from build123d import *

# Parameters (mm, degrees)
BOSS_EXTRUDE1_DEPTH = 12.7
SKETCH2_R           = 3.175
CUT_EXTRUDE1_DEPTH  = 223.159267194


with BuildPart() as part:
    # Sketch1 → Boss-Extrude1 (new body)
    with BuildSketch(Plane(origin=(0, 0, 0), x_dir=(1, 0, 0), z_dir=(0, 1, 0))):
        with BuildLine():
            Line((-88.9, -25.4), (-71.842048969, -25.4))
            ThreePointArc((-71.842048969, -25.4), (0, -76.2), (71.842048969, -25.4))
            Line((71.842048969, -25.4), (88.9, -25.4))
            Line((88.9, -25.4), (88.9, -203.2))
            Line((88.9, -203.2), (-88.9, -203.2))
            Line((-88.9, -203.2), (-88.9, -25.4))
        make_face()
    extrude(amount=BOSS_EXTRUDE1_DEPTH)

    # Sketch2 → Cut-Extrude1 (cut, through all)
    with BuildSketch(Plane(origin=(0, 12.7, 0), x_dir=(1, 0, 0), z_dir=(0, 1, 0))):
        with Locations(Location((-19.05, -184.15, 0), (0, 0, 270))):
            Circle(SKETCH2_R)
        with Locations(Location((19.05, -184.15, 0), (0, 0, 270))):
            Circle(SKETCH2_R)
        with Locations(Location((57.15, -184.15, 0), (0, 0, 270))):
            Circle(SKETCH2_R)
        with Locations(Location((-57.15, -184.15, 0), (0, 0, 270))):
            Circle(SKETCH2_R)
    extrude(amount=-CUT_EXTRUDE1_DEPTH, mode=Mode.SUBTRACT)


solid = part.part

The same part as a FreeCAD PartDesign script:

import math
import FreeCAD as App
import Part
import Sketcher

V = App.Vector
Q = App.Units.Quantity

doc = App.newDocument("Part")
body = doc.addObject("PartDesign::Body", "Body")

# Sketch on XZ plane
sketch1 = body.newObject("Sketcher::SketchObject", "Sketch")
sketch1.AttachmentSupport = (doc.getObject("XZ_Plane"), [""])
sketch1.MapMode = "FlatFace"
sketch1.addGeometry(Part.LineSegment(V(-72, 25, 0), V(-89, 25, 0)), False)
sketch1.addGeometry(Part.LineSegment(V(-89, 25, 0), V(-89, 203, 0)), False)
sketch1.addGeometry(Part.LineSegment(V(-89, 203, 0), V(89, 203, 0)), False)
sketch1.addGeometry(Part.LineSegment(V(89, 203, 0), V(89, 25, 0)), False)
sketch1.addGeometry(Part.LineSegment(V(89, 25, 0), V(72, 25, 0)), False)
sketch1.addGeometry(Part.ArcOfCircle(Part.Circle(V(0, 0, 0), V(0, 0, 1), 76), math.radians(19), math.radians(161)), False)
sketch1.addConstraint(Sketcher.Constraint("Coincident", 0, 2, 1, 1))
sketch1.addConstraint(Sketcher.Constraint("Coincident", 1, 2, 2, 1))
sketch1.addConstraint(Sketcher.Constraint("Coincident", 2, 2, 3, 1))
sketch1.addConstraint(Sketcher.Constraint("Coincident", 3, 2, 4, 1))
sketch1.addConstraint(Sketcher.Constraint("Coincident", 4, 2, 5, 1))
sketch1.addConstraint(Sketcher.Constraint("Coincident", 5, 2, 0, 1))
sketch1.addConstraint(Sketcher.Constraint("Horizontal", 0))
sketch1.addConstraint(Sketcher.Constraint("Vertical", 1))
sketch1.addConstraint(Sketcher.Constraint("Horizontal", 2))
sketch1.addConstraint(Sketcher.Constraint("Vertical", 3))
sketch1.addConstraint(Sketcher.Constraint("Horizontal", 4))
sketch1.addConstraint(Sketcher.Constraint("Coincident", 5, 3, -1, 1))
sketch1.addConstraint(Sketcher.Constraint("Symmetric", 0, 2, 3, 2, -2))
sketch1.addConstraint(Sketcher.Constraint("Equal", 2, 1))
sketch1.addConstraint(Sketcher.Constraint("Radius", 5, Q("3 in")))
sketch1.addConstraint(Sketcher.Constraint("DistanceX", 2, 1, 2, 2, Q("7 in")))
sketch1.addConstraint(Sketcher.Constraint("DistanceY", -1, 1, 0, 2, Q("1 in")))
pad1 = body.newObject("PartDesign::Pad", "Pad")
pad1.Profile = sketch1
pad1.Length = Q("0.5 in")
pad1.Reversed = True

# Sketch on XZ plane
sketch2 = body.newObject("Sketcher::SketchObject", "Sketch001")
sketch2.AttachmentSupport = (doc.getObject("XZ_Plane"), [""])
sketch2.MapMode = "FlatFace"
sketch2.AttachmentOffset = App.Placement(V(0, 0, -0.5 * 25.4), App.Rotation())
sketch2.addGeometry(Part.Circle(V(-19.1, 184.2, 0), V(0, 0, 1), 3.2), False)
sketch2.addGeometry(Part.Circle(V(19.1, 184.2, 0), V(0, 0, 1), 3.2), False)
sketch2.addGeometry(Part.Circle(V(57.1, 184.2, 0), V(0, 0, 1), 3.2), False)
sketch2.addGeometry(Part.Circle(V(-57.1, 184.2, 0), V(0, 0, 1), 3.2), False)
sketch2.addConstraint(Sketcher.Constraint("Equal", 0, 1))
sketch2.addConstraint(Sketcher.Constraint("Equal", 1, 2))
sketch2.addConstraint(Sketcher.Constraint("Equal", 2, 3))
sketch2.addConstraint(Sketcher.Constraint("Symmetric", 0, 3, 1, 3, -2))
sketch2.addConstraint(Sketcher.Constraint("Symmetric", 2, 3, 3, 3, -2))
sketch2.addConstraint(Sketcher.Constraint("Horizontal", 1, 3, 2, 3))
sketch2.addConstraint(Sketcher.Constraint("Diameter", 0, Q("0.25 in")))
sketch2.addConstraint(Sketcher.Constraint("DistanceX", 0, 3, 2, 3, Q("3 in")))
sketch2.addConstraint(Sketcher.Constraint("DistanceX", 0, 3, 1, 3, Q("1.5 in")))
sketch2.addConstraint(Sketcher.Constraint("DistanceY", -1, 1, 0, 3, Q("7.25 in")))
pocket1 = body.newObject("PartDesign::Pocket", "Pocket")
pocket1.Profile = sketch2
pocket1.Type = "ThroughAll"
pocket1.Reversed = True

doc.recompute()
